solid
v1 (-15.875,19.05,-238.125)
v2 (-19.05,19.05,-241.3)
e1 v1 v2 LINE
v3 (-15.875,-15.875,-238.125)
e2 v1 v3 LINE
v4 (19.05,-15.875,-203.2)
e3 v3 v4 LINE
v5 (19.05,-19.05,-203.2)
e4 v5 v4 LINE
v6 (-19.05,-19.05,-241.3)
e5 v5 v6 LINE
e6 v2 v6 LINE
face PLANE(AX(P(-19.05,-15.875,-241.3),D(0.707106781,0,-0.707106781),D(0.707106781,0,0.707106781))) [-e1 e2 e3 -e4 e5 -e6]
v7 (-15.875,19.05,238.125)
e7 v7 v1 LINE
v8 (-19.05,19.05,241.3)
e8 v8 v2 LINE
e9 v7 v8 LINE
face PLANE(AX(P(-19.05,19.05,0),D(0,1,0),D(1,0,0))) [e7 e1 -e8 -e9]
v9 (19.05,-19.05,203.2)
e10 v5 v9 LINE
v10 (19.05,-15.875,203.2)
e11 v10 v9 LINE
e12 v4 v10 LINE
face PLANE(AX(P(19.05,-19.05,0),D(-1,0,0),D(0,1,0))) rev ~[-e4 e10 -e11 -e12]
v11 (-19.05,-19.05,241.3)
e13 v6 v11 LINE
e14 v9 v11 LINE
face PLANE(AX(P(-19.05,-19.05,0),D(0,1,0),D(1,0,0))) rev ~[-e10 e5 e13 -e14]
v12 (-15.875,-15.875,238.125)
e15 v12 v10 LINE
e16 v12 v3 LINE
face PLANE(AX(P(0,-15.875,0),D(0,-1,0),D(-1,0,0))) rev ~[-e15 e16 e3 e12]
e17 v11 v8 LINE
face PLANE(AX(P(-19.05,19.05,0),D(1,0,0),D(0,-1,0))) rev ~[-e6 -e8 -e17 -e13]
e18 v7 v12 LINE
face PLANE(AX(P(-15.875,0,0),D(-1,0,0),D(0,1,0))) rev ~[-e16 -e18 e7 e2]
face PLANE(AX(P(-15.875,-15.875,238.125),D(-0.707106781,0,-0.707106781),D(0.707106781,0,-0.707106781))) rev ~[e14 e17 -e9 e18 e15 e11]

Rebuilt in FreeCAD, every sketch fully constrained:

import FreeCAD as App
import Part
import Sketcher

V = App.Vector
Q = App.Units.Quantity

doc = App.newDocument("Part")
body = doc.addObject("PartDesign::Body", "Body")

# Sketch on XY plane
sketch1 = body.newObject("Sketcher::SketchObject", "Sketch")
sketch1.AttachmentSupport = (doc.getObject("XY_Plane"), [""])
sketch1.MapMode = "FlatFace"
sketch1.addGeometry(Part.LineSegment(V(-19.1, 19.1, 0), V(-19.1, -19.1, 0)), False)
sketch1.addGeometry(Part.LineSegment(V(-19.1, -19.1, 0), V(19.1, -19.1, 0)), False)
sketch1.addGeometry(Part.LineSegment(V(19.1, -19.1, 0), V(19.1, -15.9, 0)), False)
sketch1.addGeometry(Part.LineSegment(V(19.1, -15.9, 0), V(-15.9, -15.9, 0)), False)
sketch1.addGeometry(Part.LineSegment(V(-15.9, -15.9, 0), V(-15.9, 19.1, 0)), False)
sketch1.addGeometry(Part.LineSegment(V(-15.9, 19.1, 0), V(-19.1, 19.1, 0)), False)
sketch1.addConstraint(Sketcher.Constraint("Coincident", 0, 2, 1, 1))
sketch1.addConstraint(Sketcher.Constraint("Coincident", 1, 2, 2, 1))
sketch1.addConstraint(Sketcher.Constraint("Coincident", 2, 2, 3, 1))
sketch1.addConstraint(Sketcher.Constraint("Coincident", 3, 2, 4, 1))
sketch1.addConstraint(Sketcher.Constraint("Coincident", 4, 2, 5, 1))
sketch1.addConstraint(Sketcher.Constraint("Coincident", 5, 2, 0, 1))
sketch1.addConstraint(Sketcher.Constraint("Vertical", 0))
sketch1.addConstraint(Sketcher.Constraint("Horizontal", 1))
sketch1.addConstraint(Sketcher.Constraint("Vertical", 2))
sketch1.addConstraint(Sketcher.Constraint("Horizontal", 3))
sketch1.addConstraint(Sketcher.Constraint("Vertical", 4))
sketch1.addConstraint(Sketcher.Constraint("Horizontal", 5))
sketch1.addConstraint(Sketcher.Constraint("Symmetric", 1, 2, 5, 2, -1, 1))
sketch1.addConstraint(Sketcher.Constraint("Equal", 1, 0))
sketch1.addConstraint(Sketcher.Constraint("Equal", 5, 2))
sketch1.addConstraint(Sketcher.Constraint("DistanceX", 1, 1, 1, 2, Q("1.5 in")))
sketch1.addConstraint(Sketcher.Constraint("DistanceX", 5, 2, 5, 1, Q("0.125 in")))
pad1 = body.newObject("PartDesign::Pad", "Pad")
pad1.Profile = sketch1
pad1.Length = Q("19 in")
pad1.Midplane = True

# Sketch on XZ plane
sketch2 = body.newObject("Sketcher::SketchObject", "Sketch001")
sketch2.AttachmentSupport = (doc.getObject("XZ_Plane"), [""])
sketch2.MapMode = "FlatFace"
sketch2.AttachmentOffset = App.Placement(V(0, 0, 0.625 * 25.4), App.Rotation())
sketch2.addGeometry(Part.LineSegment(V(19, 203, 0), V(-19, 241, 0)), False)
sketch2.addGeometry(Part.LineSegment(V(-19, 241, 0), V(19, 241, 0)), False)
sketch2.addGeometry(Part.LineSegment(V(19, 241, 0), V(19, 203, 0)), False)
sketch2.addGeometry(Part.LineSegment(V(-19, -241, 0), V(19, -203, 0)), False)
sketch2.addGeometry(Part.LineSegment(V(19, -203, 0), V(19, -241, 0)), False)
sketch2.addGeometry(Part.LineSegment(V(19, -241, 0), V(-19, -241, 0)), False)
sketch2.addConstraint(Sketcher.Constraint("Coincident", 0, 2, 1, 1))
sketch2.addConstraint(Sketcher.Constraint("Coincident", 1, 2, 2, 1))
sketch2.addConstraint(Sketcher.Constraint("Coincident", 2, 2, 0, 1))
sketch2.addConstraint(Sketcher.Constraint("Coincident", 3, 2, 4, 1))
sketch2.addConstraint(Sketcher.Constraint("Coincident", 4, 2, 5, 1))
sketch2.addConstraint(Sketcher.Constraint("Coincident", 5, 2, 3, 1))
sketch2.addConstraint(Sketcher.Constraint("Horizontal", 1))
sketch2.addConstraint(Sketcher.Constraint("Vertical", 2))
sketch2.addConstraint(Sketcher.Constraint("Vertical", 4))
sketch2.addConstraint(Sketcher.Constraint("Horizontal", 5))
sketch2.addConstraint(Sketcher.Constraint("Symmetric", 0, 2, 4, 2, -1, 1))
sketch2.addConstraint(Sketcher.Constraint("Symmetric", 2, 2, 3, 2, -1))
sketch2.addConstraint(Sketcher.Constraint("Perpendicular", 0, 3))
sketch2.addConstraint(Sketcher.Constraint("Vertical", 0, 2, 5, 2))
sketch2.addConstraint(Sketcher.Constraint("DistanceX", 1, 1, 1, 2, Q("1.5 in")))
sketch2.addConstraint(Sketcher.Constraint("DistanceY", -1, 1, 2, 2, Q("8 in")))
pocket1 = body.newObject("PartDesign::Pocket", "Pocket")
pocket1.Profile = sketch2
pocket1.Type = "ThroughAll"
pocket1.Midplane = True

doc.recompute()
